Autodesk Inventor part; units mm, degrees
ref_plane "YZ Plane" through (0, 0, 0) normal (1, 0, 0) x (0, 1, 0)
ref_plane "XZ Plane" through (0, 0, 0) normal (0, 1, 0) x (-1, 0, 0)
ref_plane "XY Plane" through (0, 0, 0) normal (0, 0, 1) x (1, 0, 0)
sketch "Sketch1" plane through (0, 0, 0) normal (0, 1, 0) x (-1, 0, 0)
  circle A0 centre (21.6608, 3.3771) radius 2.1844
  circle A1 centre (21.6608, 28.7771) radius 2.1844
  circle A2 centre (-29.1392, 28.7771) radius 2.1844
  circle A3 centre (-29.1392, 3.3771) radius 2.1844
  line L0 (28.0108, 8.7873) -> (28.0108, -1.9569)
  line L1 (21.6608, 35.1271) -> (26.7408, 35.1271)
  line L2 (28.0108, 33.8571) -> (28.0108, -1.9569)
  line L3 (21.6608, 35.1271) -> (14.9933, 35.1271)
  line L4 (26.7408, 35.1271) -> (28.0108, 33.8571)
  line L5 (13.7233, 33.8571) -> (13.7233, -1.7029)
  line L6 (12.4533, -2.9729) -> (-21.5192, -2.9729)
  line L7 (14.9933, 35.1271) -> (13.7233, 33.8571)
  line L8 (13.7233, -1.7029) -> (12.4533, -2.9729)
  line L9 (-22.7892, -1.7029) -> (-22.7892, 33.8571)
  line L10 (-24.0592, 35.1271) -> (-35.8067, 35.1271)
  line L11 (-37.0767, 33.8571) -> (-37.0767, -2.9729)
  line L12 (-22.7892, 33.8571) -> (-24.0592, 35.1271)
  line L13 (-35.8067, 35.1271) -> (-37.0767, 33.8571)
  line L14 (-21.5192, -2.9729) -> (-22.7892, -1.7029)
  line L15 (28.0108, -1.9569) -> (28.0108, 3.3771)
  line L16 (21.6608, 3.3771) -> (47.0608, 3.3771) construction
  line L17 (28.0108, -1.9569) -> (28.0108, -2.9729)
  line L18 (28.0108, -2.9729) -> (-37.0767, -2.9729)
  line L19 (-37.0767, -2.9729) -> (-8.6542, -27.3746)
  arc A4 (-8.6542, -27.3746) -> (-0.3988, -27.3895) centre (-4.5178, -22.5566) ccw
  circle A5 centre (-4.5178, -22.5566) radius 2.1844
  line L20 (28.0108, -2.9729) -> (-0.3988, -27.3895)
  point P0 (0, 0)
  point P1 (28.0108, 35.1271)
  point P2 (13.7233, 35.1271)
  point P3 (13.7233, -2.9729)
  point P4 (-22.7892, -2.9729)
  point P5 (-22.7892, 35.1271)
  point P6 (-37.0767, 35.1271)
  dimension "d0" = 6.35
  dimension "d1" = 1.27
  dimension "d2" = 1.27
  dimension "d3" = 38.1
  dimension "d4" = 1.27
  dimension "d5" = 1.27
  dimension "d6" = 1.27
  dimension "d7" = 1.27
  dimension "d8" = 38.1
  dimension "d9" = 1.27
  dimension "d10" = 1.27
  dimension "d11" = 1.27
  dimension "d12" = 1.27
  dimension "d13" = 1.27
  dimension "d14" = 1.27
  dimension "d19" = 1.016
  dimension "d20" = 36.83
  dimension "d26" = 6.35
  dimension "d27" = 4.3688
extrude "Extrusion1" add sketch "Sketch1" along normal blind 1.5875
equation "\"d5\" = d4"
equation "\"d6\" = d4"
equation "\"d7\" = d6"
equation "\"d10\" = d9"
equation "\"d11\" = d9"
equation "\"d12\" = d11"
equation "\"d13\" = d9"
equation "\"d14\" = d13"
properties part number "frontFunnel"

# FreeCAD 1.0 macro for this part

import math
import FreeCAD as App
import Part
import Sketcher
Q = App.Units.Quantity

doc = App.newDocument("Part")
body = doc.addObject("PartDesign::Body", "Body")

# Sketch on XZ plane
sketch1 = doc.addObject("Sketcher::SketchObject", "Sketch")
body.addObject(sketch1)
sketch1.AttachmentSupport = (doc.XZ_Plane, [""])
sketch1.MapMode = "FlatFace"
sketch1.addGeometry(Part.LineSegment(App.Vector(-28.0108, 33.8571, 0), App.Vector(-26.7408, 35.1271, 0)), False)
sketch1.addGeometry(Part.LineSegment(App.Vector(-26.7408, 35.1271, 0), App.Vector(-14.9933, 35.1271, 0)), False)
sketch1.addGeometry(Part.LineSegment(App.Vector(-14.9933, 35.1271, 0), App.Vector(-13.7233, 33.8571, 0)), False)
sketch1.addGeometry(Part.LineSegment(App.Vector(-13.7233, 33.8571, 0), App.Vector(-13.7233, -1.7029, 0)), False)
sketch1.addGeometry(Part.LineSegment(App.Vector(-13.7233, -1.7029, 0), App.Vector(-12.4533, -2.9729, 0)), False)
sketch1.addGeometry(Part.LineSegment(App.Vector(-12.4533, -2.9729, 0), App.Vector(21.5192, -2.9729, 0)), False)
sketch1.addGeometry(Part.LineSegment(App.Vector(21.5192, -2.9729, 0), App.Vector(22.7892, -1.7029, 0)), False)
sketch1.addGeometry(Part.LineSegment(App.Vector(22.7892, -1.7029, 0), App.Vector(22.7892, 33.8571, 0)), False)
sketch1.addGeometry(Part.LineSegment(App.Vector(22.7892, 33.8571, 0), App.Vector(24.0592, 35.1271, 0)), False)
sketch1.addGeometry(Part.LineSegment(App.Vector(24.0592, 35.1271, 0), App.Vector(35.8067, 35.1271, 0)), False)
sketch1.addGeometry(Part.LineSegment(App.Vector(35.8067, 35.1271, 0), App.Vector(37.0767, 33.8571, 0)), False)
sketch1.addGeometry(Part.LineSegment(App.Vector(37.0767, 33.8571, 0), App.Vector(37.0767, -2.9729, 0)), False)
sketch1.addGeometry(Part.LineSegment(App.Vector(37.0767, -2.9729, 0), App.Vector(8.6542, -27.3746, 0)), False)
sketch1.addGeometry(Part.ArcOfCircle(Part.Circle(App.Vector(4.5178, -22.5566, 0), App.Vector(0, 0, 1), 6.350034), math.radians(-130.440401), math.radians(-49.352904)), False)
sketch1.addGeometry(Part.LineSegment(App.Vector(0.3988, -27.3895, 0), App.Vector(-28.0108, -2.9729, 0)), False)
sketch1.addGeometry(Part.LineSegment(App.Vector(-28.0108, -2.9729, 0), App.Vector(-28.0108, 33.8571, 0)), False)
sketch1.addGeometry(Part.Circle(App.Vector(-21.6608, 3.3771, 0), App.Vector(0, 0, 1), 2.1844), False)
sketch1.addGeometry(Part.Circle(App.Vector(-21.6608, 28.7771, 0), App.Vector(0, 0, 1), 2.1844), False)
sketch1.addGeometry(Part.Circle(App.Vector(4.5178, -22.5566, 0), App.Vector(0, 0, 1), 2.1844), False)
sketch1.addGeometry(Part.Circle(App.Vector(29.1392, 28.7771, 0), App.Vector(0, 0, 1), 2.1844), False)
sketch1.addGeometry(Part.Circle(App.Vector(29.1392, 3.3771, 0), App.Vector(0, 0, 1), 2.1844), False)
sketch1.addConstraint(Sketcher.Constraint("Coincident", 0, 2, 1, 1))
sketch1.addConstraint(Sketcher.Constraint("Coincident", 1, 2, 2, 1))
sketch1.addConstraint(Sketcher.Constraint("Coincident", 2, 2, 3, 1))
sketch1.addConstraint(Sketcher.Constraint("Coincident", 3, 2, 4, 1))
sketch1.addConstraint(Sketcher.Constraint("Coincident", 4, 2, 5, 1))
sketch1.addConstraint(Sketcher.Constraint("Coincident", 5, 2, 6, 1))
sketch1.addConstraint(Sketcher.Constraint("Coincident", 6, 2, 7, 1))
sketch1.addConstraint(Sketcher.Constraint("Coincident", 7, 2, 8, 1))
sketch1.addConstraint(Sketcher.Constraint("Coincident", 8, 2, 9, 1))
sketch1.addConstraint(Sketcher.Constraint("Coincident", 9, 2, 10, 1))
sketch1.addConstraint(Sketcher.Constraint("Coincident", 10, 2, 11, 1))
sketch1.addConstraint(Sketcher.Constraint("Coincident", 11, 2, 12, 1))
sketch1.addConstraint(Sketcher.Constraint("Tangent", 12, 2, 13, 2))
sketch1.addConstraint(Sketcher.Constraint("Coincident", 13, 1, 14, 1))
sketch1.addConstraint(Sketcher.Constraint("Coincident", 14, 2, 15, 1))
sketch1.addConstraint(Sketcher.Constraint("Coincident", 15, 2, 0, 1))
sketch1.addConstraint(Sketcher.Constraint("Horizontal", 1))
sketch1.addConstraint(Sketcher.Constraint("Vertical", 3))
sketch1.addConstraint(Sketcher.Constraint("Horizontal", 5))
sketch1.addConstraint(Sketcher.Constraint("Vertical", 7))
sketch1.addConstraint(Sketcher.Constraint("Horizontal", 9))
sketch1.addConstraint(Sketcher.Constraint("Vertical", 11))
sketch1.addConstraint(Sketcher.Constraint("Vertical", 15))
sketch1.addConstraint(Sketcher.Constraint("Coincident", 18, 3, 13, 3))
sketch1.addConstraint(Sketcher.Constraint("Equal", 16, 17))
sketch1.addConstraint(Sketcher.Constraint("Equal", 17, 18))
sketch1.addConstraint(Sketcher.Constraint("Equal", 18, 19))
sketch1.addConstraint(Sketcher.Constraint("Equal", 19, 20))
sketch1.addConstraint(Sketcher.Constraint("Perpendicular", 0, 2))
sketch1.addConstraint(Sketcher.Constraint("Parallel", 2, 4))
sketch1.addConstraint(Sketcher.Constraint("Perpendicular", 4, 6))
sketch1.addConstraint(Sketcher.Constraint("Parallel", 6, 8))
sketch1.addConstraint(Sketcher.Constraint("Perpendicular", 8, 10))
sketch1.addConstraint(Sketcher.Constraint("Horizontal", 17, 3, 19, 3))
sketch1.addConstraint(Sketcher.Constraint("Horizontal", 16, 3, 20, 3))
sketch1.addConstraint(Sketcher.Constraint("Horizontal", 3, 2, 6, 2))
sketch1.addConstraint(Sketcher.Constraint("Horizontal", 2, 2, 7, 2))
sketch1.addConstraint(Sketcher.Constraint("Horizontal", 1, 2, 8, 2))
sketch1.addConstraint(Sketcher.Constraint("Horizontal", 7, 2, 10, 2))
sketch1.addConstraint(Sketcher.Constraint("Horizontal", 5, 2, 11, 2))
sketch1.addConstraint(Sketcher.Constraint("Horizontal", 11, 2, 14, 2))
sketch1.addConstraint(Sketcher.Constraint("Horizontal", 10, 2, 15, 2))
sketch1.addConstraint(Sketcher.Constraint("Vertical", 16, 3, 17, 3))
sketch1.addConstraint(Sketcher.Constraint("Vertical", 19, 3, 20, 3))
sketch1.addConstraint(Sketcher.Constraint("Equal", 1, 9))
sketch1.addConstraint(Sketcher.Constraint("Equal", 0, 2))
sketch1.addConstraint(Sketcher.Constraint("Equal", 2, 4))
sketch1.addConstraint(Sketcher.Constraint("Equal", 12, 14))
sketch1.addConstraint(Sketcher.Constraint("Radius", 13, Q("0.25 in")))
sketch1.addConstraint(Sketcher.Constraint("Diameter", 16, Q("0.172 in")))
sketch1.addConstraint(Sketcher.Constraint("DistanceY", 11, 2, 11, 1, Q("1.45 in")))
sketch1.addConstraint(Sketcher.Constraint("DistanceY", 17, 3, 0, 2, Q("0.25 in")))
sketch1.addConstraint(Sketcher.Constraint("DistanceX", 1, 2, 2, 2, Q("0.05 in")))
sketch1.addConstraint(Sketcher.Constraint("DistanceY", 4, 2, 16, 3, Q("0.25 in")))
sketch1.addConstraint(Sketcher.Constraint("DistanceX", 6, 2, 20, 3, Q("0.25 in")))
sketch1.addConstraint(Sketcher.Constraint("DistanceX", 14, 2, 16, 3, Q("0.25 in")))
sketch1.addConstraint(Sketcher.Constraint("DistanceX", 17, 3, 19, 3, Q("2 in")))
sketch1.addConstraint(Sketcher.Constraint("DistanceX", 1, 1, 1, 2, Q("0.4625 in")))
sketch1.addConstraint(Sketcher.Constraint("DistanceY", 13, 3, 16, 3, Q("1.021 in")))
sketch1.addConstraint(Sketcher.Constraint("DistanceX", 4, 2, 12, 2, Q("0.831 in")))
sketch1.addConstraint(Sketcher.Constraint("DistanceX", -1, 1, 13, 1, Q("0.0157 in")))
sketch1.addConstraint(Sketcher.Constraint("DistanceY", 13, 3, -1, 1, Q("22.5566 mm")))
pad1 = doc.addObject("PartDesign::Pad", "Pad")
body.addObject(pad1)
pad1.Profile = sketch1
pad1.Length = Q("0.0625 in")
pad1.Reversed = True

doc.recompute()
